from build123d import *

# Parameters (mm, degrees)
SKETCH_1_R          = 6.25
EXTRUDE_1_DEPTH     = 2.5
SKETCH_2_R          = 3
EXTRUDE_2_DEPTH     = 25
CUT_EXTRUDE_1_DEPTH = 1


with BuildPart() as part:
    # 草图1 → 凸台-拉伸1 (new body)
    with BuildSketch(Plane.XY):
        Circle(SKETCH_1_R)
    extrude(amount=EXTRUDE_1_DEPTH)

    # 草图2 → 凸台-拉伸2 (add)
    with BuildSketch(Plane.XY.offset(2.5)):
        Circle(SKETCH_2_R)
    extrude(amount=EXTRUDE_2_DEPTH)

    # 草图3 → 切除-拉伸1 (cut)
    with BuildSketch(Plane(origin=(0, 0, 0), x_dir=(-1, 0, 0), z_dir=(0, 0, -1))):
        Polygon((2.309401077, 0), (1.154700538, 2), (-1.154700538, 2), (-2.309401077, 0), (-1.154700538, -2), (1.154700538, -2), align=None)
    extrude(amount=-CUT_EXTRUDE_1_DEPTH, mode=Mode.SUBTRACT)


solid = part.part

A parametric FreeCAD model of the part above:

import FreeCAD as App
import Part
import Sketcher
from FreeCAD import Vector
Q = App.Units.Quantity


def add_polygon(sketch, points):
    """Adds a closed chain of lines whose ends are joined by coincident constraints."""
    first, n = sketch.GeometryCount, len(points)
    for a, b in zip(points, points[1:] + points[:1]):
        sketch.addGeometry(Part.LineSegment(App.Vector(*a, 0), App.Vector(*b, 0)), False)
    for i in range(n):
        sketch.addConstraint(Sketcher.Constraint("Coincident", first + i, 2, first + (i + 1) % n, 1))

doc = App.newDocument("Part")
params = doc.addObject("Spreadsheet::Sheet", "Params")
for row, (alias, value) in enumerate([
    ("sketch1_diameter", "12.5 mm"),
    ("pad1_length", "2.5 mm"),
    ("sketch2_diameter", "6 mm"),
    ("pad2_length", "25 mm"),
    ("pocket1_length", "1 mm"),
], start=1):
    params.set(f"A{row}", alias)
    params.set(f"B{row}", "=" + value)
    params.setAlias(f"B{row}", alias)

body = doc.addObject("PartDesign::Body", "Body")

# Sketch on XY plane
sketch1 = body.newObject("Sketcher::SketchObject", "Sketch")
sketch1.AttachmentSupport = (doc.getObject("XY_Plane"), [""])
sketch1.MapMode = "FlatFace"
sketch1.addGeometry(Part.Circle(Vector(0, 0, 0), Vector(0, 0, 1), 6), False)
sketch1.addConstraint([
    Sketcher.Constraint("Coincident", 0, 3, -1, 1),
    Sketcher.Constraint("Diameter", 0, Q("12.5 mm")),
])
sketch1.setExpression("Constraints[1]", "Params.sketch1_diameter")
pad1 = body.newObject("PartDesign::Pad", "Pad")
pad1.Profile = sketch1
pad1.setExpression("Length", "Params.pad1_length")

# Sketch on XY plane
sketch2 = body.newObject("Sketcher::SketchObject", "Sketch001")
sketch2.AttachmentSupport = (doc.getObject("XY_Plane"), [""])
sketch2.MapMode = "FlatFace"
sketch2.AttachmentOffset = App.Placement(Vector(0, 0, 2.5), App.Rotation())
sketch2.addGeometry(Part.Circle(Vector(0, 0, 0), Vector(0, 0, 1), 3), False)
sketch2.addConstraint([
    Sketcher.Constraint("Coincident", 0, 3, -1, 1),
    Sketcher.Constraint("Diameter", 0, Q("6 mm")),
])
sketch2.setExpression("Constraints[1]", "Params.sketch2_diameter")
pad2 = body.newObject("PartDesign::Pad", "Pad001")
pad2.Profile = sketch2
pad2.setExpression("Length", "Params.pad2_length")

# Sketch on XY plane
sketch3 = body.newObject("Sketcher::SketchObject", "Sketch002")
sketch3.AttachmentSupport = (doc.getObject("XY_Plane"), [""])
sketch3.MapMode = "FlatFace"
add_polygon(sketch3, [(-2.3, 0), (-1.2, 2), (1.2, 2), (2.3, 0), (1.2, -2), (-1.2, -2)])  # lines 0-5
sketch3.addConstraint([
    Sketcher.Constraint("Horizontal", 1),
    Sketcher.Constraint("Horizontal", 4),
    Sketcher.Constraint("Symmetric", 0, 2, 3, 2, -1, 1),
    Sketcher.Constraint("Symmetric", 2, 2, 5, 2, -1, 1),
    Sketcher.Constraint("PointOnObject", 2, 2, -1),
    Sketcher.Constraint("Parallel", 2, 5),
    Sketcher.Constraint("Vertical", 1, 2, 3, 2),
    Sketcher.Constraint("Angle", 0, Q("60 deg")),
    Sketcher.Constraint("DistanceY", -1, 1, 0, 2, Q("2 mm")),
    Sketcher.Constraint("DistanceX", 1, 1, 1, 2, Q("2.309401 mm")),
])
pocket1 = body.newObject("PartDesign::Pocket", "Pocket")
pocket1.Profile = sketch3
pocket1.setExpression("Length", "Params.pocket1_length")
pocket1.Reversed = True

doc.recompute()
